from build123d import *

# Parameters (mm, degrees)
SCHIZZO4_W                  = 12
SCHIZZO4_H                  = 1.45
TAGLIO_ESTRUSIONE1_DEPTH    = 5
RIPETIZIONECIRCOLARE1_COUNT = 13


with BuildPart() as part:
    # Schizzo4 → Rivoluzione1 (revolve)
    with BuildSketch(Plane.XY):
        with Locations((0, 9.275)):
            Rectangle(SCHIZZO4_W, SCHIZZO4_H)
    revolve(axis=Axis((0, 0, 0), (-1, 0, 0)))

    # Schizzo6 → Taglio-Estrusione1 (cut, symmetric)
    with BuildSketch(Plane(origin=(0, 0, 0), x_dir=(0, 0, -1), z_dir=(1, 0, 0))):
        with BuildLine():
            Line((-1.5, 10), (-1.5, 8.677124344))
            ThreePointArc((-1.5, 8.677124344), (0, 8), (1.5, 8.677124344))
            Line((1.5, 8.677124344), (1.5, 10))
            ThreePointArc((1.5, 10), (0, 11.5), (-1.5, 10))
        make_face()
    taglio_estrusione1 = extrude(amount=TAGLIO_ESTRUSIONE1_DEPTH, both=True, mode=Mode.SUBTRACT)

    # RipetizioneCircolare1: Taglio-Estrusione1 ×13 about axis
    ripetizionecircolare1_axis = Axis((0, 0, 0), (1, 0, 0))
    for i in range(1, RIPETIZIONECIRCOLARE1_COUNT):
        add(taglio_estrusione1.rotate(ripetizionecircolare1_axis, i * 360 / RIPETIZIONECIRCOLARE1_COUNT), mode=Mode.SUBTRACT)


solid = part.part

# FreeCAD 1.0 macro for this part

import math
import FreeCAD as App
import Part
import Sketcher
Q = App.Units.Quantity

doc = App.newDocument("Part")
body = doc.addObject("PartDesign::Body", "Body")

# Sketch on XY plane
sketch1 = body.newObject("Sketcher::SketchObject", "Sketch")
sketch1.AttachmentSupport = (doc.getObject("XY_Plane"), [""])
sketch1.MapMode = "FlatFace"
sketch1.addGeometry(Part.LineSegment(App.Vector(-6, 10, 0), App.Vector(-6, 8.6, 0)), False)
sketch1.addGeometry(Part.LineSegment(App.Vector(-6, 8.6, 0), App.Vector(6, 8.6, 0)), False)
sketch1.addGeometry(Part.LineSegment(App.Vector(6, 8.6, 0), App.Vector(6, 10, 0)), False)
sketch1.addGeometry(Part.LineSegment(App.Vector(6, 10, 0), App.Vector(-6, 10, 0)), False)
sketch1.addConstraint(Sketcher.Constraint("Coincident", 0, 2, 1, 1))
sketch1.addConstraint(Sketcher.Constraint("Coincident", 1, 2, 2, 1))
sketch1.addConstraint(Sketcher.Constraint("Coincident", 2, 2, 3, 1))
sketch1.addConstraint(Sketcher.Constraint("Coincident", 3, 2, 0, 1))
sketch1.addConstraint(Sketcher.Constraint("Vertical", 0))
sketch1.addConstraint(Sketcher.Constraint("Horizontal", 1))
sketch1.addConstraint(Sketcher.Constraint("Vertical", 2))
sketch1.addConstraint(Sketcher.Constraint("Horizontal", 3))
sketch1.addConstraint(Sketcher.Constraint("DistanceX", 1, 1, 1, 2, Q("12 mm")))
sketch1.addConstraint(Sketcher.Constraint("DistanceX", 0, 2, -1, 1, Q("6 mm")))
sketch1.addConstraint(Sketcher.Constraint("DistanceY", -1, 1, 2, 2, Q("10 mm")))
sketch1.addConstraint(Sketcher.Constraint("DistanceY", 0, 2, 0, 1, Q("1.45 mm")))
revolution = body.newObject("PartDesign::Revolution", "Revolution")
revolution.Profile = sketch1
revolution.ReferenceAxis = (sketch1, ["H_Axis"])
revolution.Angle = 360

# Sketch on YZ plane
sketch2 = body.newObject("Sketcher::SketchObject", "Sketch001")
sketch2.AttachmentSupport = (doc.getObject("YZ_Plane"), [""])
sketch2.MapMode = "FlatFace"
sketch2.addGeometry(Part.LineSegment(App.Vector(10, 1.5, 0), App.Vector(8.7, 1.5, 0)), False)
sketch2.addGeometry(Part.ArcOfCircle(Part.Circle(App.Vector(10, 0, 0), App.Vector(0, 0, 1), 2), math.radians(131), math.radians(229)), False)
sketch2.addGeometry(Part.LineSegment(App.Vector(8.7, -1.5, 0), App.Vector(10, -1.5, 0)), False)
sketch2.addGeometry(Part.ArcOfCircle(Part.Circle(App.Vector(10, 0, 0), App.Vector(0, 0, 1), 1.5), math.radians(-90), math.radians(90)), False)
sketch2.addConstraint(Sketcher.Constraint("Coincident", 0, 2, 1, 1))
sketch2.addConstraint(Sketcher.Constraint("Coincident", 1, 2, 2, 1))
sketch2.addConstraint(Sketcher.Constraint("Tangent", 2, 2, 3, 1))
sketch2.addConstraint(Sketcher.Constraint("Tangent", 3, 2, 0, 1))
sketch2.addConstraint(Sketcher.Constraint("Horizontal", 0))
sketch2.addConstraint(Sketcher.Constraint("Horizontal", 2))
sketch2.addConstraint(Sketcher.Constraint("Coincident", 3, 3, 1, 3))
sketch2.addConstraint(Sketcher.Constraint("PointOnObject", 1, 3, -1))
sketch2.addConstraint(Sketcher.Constraint("Radius", 1, Q("2 mm")))
sketch2.addConstraint(Sketcher.Constraint("Radius", 3, Q("1.5 mm")))
sketch2.addConstraint(Sketcher.Constraint("DistanceX", -1, 1, 1, 3, Q("10 mm")))
pocket1 = body.newObject("PartDesign::Pocket", "Pocket")
pocket1.Profile = sketch2
pocket1.Length = 10
pocket1.Midplane = True
doc.recompute()

polarpattern = body.newObject("PartDesign::PolarPattern", "PolarPattern")
polarpattern.Originals = [pocket1]
polarpattern.Axis = (doc.getObject("X_Axis"), [""])
polarpattern.Angle = 360
polarpattern.Occurrences = 13
body.Tip = polarpattern

doc.recompute()
